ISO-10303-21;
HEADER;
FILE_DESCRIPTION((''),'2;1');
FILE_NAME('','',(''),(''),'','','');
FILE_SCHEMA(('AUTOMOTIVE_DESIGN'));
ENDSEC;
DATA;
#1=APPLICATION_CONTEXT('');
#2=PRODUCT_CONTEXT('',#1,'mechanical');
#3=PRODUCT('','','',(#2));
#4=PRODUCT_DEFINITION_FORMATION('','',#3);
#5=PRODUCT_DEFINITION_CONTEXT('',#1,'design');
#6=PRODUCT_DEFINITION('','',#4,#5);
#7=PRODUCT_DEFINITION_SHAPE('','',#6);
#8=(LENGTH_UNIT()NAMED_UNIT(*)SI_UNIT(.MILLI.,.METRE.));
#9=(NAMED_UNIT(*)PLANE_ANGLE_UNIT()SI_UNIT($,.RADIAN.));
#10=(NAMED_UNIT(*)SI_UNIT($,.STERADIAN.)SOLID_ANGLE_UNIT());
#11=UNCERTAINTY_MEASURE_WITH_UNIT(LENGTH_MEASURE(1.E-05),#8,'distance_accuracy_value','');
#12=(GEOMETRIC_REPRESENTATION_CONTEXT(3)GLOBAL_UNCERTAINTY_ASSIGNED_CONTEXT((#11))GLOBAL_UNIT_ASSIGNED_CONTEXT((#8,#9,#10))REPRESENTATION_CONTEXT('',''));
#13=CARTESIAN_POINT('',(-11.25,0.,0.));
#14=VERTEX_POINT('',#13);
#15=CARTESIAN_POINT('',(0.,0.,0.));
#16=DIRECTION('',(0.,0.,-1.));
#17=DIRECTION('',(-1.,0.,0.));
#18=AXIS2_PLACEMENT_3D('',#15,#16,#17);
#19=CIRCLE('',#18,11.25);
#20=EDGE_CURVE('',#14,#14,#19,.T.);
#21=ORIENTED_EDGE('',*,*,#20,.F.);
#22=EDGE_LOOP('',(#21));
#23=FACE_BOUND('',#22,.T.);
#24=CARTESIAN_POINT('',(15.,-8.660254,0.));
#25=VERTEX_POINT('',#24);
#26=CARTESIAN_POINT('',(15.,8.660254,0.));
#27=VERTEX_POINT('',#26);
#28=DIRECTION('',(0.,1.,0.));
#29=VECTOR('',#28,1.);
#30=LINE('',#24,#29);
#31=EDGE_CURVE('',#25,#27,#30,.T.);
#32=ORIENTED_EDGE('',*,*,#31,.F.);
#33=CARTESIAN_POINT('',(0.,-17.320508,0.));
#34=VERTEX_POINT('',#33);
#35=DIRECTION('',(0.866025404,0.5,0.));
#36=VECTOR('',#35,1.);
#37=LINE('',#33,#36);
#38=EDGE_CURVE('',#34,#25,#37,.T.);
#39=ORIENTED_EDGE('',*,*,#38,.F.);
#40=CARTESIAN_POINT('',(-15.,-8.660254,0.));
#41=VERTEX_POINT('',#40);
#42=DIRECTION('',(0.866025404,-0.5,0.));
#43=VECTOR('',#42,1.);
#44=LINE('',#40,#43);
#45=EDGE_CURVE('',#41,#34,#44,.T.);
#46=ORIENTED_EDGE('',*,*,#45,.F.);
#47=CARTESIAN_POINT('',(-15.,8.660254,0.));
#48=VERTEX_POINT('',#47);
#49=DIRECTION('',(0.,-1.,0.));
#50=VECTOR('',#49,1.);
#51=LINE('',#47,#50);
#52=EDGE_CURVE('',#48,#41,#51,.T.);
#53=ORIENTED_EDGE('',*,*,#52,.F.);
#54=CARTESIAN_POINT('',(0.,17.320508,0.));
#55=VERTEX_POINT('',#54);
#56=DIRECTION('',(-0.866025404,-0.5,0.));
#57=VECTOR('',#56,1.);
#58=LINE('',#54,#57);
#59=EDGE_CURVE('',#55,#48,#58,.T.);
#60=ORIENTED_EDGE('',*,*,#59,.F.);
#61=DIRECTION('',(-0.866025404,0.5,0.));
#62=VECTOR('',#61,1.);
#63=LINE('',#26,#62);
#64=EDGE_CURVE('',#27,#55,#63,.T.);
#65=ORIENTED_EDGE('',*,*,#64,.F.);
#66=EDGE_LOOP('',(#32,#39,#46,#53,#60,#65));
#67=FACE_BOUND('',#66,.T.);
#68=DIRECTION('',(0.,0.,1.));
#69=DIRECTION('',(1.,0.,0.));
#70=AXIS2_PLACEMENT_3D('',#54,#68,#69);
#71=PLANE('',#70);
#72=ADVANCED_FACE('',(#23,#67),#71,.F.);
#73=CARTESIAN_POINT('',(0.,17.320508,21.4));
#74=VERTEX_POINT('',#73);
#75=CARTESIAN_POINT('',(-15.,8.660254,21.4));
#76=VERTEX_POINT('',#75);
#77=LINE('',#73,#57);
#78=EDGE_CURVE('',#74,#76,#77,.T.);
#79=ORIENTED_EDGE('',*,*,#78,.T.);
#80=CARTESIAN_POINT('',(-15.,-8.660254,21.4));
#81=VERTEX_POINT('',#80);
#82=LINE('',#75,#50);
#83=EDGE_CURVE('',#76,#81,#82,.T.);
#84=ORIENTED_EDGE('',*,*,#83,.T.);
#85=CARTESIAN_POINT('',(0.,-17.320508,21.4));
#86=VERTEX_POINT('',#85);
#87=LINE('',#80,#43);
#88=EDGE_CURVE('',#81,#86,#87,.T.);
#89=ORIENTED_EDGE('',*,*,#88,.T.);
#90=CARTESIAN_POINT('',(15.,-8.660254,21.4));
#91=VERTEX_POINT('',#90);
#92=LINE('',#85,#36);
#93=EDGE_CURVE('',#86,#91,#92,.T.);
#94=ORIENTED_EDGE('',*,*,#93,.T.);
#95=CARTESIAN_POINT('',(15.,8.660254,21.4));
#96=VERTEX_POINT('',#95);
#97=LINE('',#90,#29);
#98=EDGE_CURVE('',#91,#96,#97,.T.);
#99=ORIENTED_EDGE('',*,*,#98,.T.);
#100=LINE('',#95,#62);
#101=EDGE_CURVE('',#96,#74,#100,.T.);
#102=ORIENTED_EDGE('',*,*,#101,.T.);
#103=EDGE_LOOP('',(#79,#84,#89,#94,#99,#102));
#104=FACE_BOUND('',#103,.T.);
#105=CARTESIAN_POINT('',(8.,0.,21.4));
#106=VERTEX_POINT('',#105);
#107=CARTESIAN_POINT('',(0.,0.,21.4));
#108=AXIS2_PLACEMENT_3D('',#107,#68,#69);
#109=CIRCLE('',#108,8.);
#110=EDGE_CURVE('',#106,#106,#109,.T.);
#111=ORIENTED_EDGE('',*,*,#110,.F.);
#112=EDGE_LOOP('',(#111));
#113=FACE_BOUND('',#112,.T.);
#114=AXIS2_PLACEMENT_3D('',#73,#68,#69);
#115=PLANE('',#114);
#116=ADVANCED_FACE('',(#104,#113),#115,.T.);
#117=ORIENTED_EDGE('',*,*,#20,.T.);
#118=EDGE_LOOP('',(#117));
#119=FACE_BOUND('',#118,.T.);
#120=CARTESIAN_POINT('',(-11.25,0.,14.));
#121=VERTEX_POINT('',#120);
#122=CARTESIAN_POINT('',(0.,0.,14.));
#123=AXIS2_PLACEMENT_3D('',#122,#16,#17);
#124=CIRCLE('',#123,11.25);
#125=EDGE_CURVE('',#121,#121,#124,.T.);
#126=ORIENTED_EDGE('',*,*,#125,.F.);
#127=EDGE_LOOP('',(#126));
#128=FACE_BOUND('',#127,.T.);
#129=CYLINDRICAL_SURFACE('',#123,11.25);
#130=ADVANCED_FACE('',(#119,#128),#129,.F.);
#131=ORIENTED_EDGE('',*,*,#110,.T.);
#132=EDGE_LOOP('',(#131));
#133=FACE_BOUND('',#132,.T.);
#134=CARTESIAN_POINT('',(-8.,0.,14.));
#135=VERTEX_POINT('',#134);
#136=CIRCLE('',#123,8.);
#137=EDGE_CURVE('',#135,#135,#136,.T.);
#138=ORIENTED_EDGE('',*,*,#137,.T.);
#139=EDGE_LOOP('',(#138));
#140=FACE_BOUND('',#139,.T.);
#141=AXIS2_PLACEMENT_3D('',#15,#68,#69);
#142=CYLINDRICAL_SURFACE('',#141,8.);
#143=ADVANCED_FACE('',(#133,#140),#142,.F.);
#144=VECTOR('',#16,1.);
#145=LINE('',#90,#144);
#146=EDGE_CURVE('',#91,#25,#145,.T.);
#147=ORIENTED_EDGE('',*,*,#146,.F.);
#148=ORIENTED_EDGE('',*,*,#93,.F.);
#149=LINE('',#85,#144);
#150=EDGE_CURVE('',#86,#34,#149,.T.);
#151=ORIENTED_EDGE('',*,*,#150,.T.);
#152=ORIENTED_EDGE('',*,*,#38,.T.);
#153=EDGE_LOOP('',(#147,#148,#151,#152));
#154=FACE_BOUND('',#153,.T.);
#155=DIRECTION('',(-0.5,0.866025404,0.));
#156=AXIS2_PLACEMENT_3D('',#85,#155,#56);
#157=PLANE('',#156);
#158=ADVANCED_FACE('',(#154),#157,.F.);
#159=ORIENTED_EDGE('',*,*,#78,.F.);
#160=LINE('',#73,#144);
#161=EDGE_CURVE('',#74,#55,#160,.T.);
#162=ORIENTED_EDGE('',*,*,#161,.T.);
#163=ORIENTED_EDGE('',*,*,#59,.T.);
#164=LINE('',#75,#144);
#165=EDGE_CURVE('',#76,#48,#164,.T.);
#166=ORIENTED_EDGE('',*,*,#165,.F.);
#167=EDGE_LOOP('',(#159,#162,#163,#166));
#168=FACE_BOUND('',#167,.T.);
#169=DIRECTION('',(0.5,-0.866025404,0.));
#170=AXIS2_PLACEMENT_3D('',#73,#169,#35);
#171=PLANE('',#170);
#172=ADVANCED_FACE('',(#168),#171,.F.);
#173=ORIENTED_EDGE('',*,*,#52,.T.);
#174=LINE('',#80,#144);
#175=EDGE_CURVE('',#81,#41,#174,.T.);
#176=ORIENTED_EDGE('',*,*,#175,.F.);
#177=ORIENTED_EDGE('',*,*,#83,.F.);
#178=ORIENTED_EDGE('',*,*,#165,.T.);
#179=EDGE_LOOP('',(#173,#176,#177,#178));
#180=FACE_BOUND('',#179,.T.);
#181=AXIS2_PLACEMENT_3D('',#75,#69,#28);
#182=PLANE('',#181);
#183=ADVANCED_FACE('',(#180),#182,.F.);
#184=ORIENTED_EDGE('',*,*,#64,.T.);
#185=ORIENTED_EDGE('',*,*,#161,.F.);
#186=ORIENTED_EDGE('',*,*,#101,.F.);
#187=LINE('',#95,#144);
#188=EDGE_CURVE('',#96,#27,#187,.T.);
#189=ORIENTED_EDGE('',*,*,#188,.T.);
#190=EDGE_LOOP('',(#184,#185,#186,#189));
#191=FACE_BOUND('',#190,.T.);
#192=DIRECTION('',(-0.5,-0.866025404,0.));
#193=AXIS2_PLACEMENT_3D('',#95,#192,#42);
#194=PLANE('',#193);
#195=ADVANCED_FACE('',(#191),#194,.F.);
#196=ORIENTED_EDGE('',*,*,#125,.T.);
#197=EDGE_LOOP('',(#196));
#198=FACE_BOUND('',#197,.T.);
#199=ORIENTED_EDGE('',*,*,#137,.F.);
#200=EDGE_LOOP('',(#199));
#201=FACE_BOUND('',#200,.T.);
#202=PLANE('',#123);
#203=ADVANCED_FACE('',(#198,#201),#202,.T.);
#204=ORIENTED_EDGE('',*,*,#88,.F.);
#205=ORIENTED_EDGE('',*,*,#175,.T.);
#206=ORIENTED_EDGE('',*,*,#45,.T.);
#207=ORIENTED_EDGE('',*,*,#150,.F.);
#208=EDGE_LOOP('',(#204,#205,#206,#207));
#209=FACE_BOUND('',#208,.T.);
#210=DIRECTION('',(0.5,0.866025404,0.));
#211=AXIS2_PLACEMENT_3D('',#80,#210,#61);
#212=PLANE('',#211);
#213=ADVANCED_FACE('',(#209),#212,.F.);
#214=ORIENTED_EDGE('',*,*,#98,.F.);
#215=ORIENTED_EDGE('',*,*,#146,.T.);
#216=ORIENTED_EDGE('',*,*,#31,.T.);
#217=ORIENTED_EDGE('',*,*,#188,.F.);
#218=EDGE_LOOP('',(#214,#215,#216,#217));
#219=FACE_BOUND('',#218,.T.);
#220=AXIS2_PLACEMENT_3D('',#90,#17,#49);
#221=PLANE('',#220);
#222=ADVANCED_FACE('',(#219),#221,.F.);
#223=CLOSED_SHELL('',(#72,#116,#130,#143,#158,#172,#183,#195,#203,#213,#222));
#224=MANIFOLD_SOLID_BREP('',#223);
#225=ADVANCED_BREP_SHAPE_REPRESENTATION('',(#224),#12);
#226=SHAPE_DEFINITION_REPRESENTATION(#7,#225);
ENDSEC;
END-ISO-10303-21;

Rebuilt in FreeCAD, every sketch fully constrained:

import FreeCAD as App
import Part
import Sketcher
Q = App.Units.Quantity


def add_polygon(sketch, points):
    """Adds a closed chain of lines whose ends are joined by coincident constraints."""
    first, n = sketch.GeometryCount, len(points)
    for a, b in zip(points, points[1:] + points[:1]):
        sketch.addGeometry(Part.LineSegment(App.Vector(*a, 0), App.Vector(*b, 0)), False)
    for i in range(n):
        sketch.addConstraint(Sketcher.Constraint("Coincident", first + i, 2, first + (i + 1) % n, 1))

doc = App.newDocument("Part")
body = doc.addObject("PartDesign::Body", "Body")

sketch1 = body.newObject("Sketcher::SketchObject", "Sketch")
sketch1.AttachmentSupport = (doc.getObject("XY_Plane"), [""])
sketch1.MapMode = "FlatFace"
add_polygon(sketch1, [(0, 17), (-15, 9), (-15, -9), (0, -17), (15, -9), (15, 9)])
sketch1.addConstraint([
    Sketcher.Constraint("Vertical", 1),
    Sketcher.Constraint("Vertical", 4),
    Sketcher.Constraint("Symmetric", 0, 2, 3, 2, -1, 1),
    Sketcher.Constraint("Symmetric", 2, 2, 5, 2, -1, 1),
    Sketcher.Constraint("PointOnObject", 2, 2, -2),
    Sketcher.Constraint("Parallel", 2, 5),
    Sketcher.Constraint("Horizontal", 1, 2, 3, 2),
    Sketcher.Constraint("Angle", 0, Q("-150 deg")),
    Sketcher.Constraint("DistanceX", 0, 2, -1, 1, Q("15 mm")),
    Sketcher.Constraint("DistanceY", 1, 2, 1, 1, Q("17.320508 mm")),
])
pad1 = body.newObject("PartDesign::Pad", "Pad")
pad1.Profile = sketch1
pad1.Length = 21.4

sketch2 = body.newObject("Sketcher::SketchObject", "Sketch001")
sketch2.AttachmentSupport = (doc.getObject("XY_Plane"), [""])
sketch2.MapMode = "FlatFace"
sketch2.addGeometry(Part.Circle(App.Vector(0, 0, 0), App.Vector(0, 0, 1), 11), False)
sketch2.addConstraint([
    Sketcher.Constraint("Coincident", 0, 3, -1, 1),
    Sketcher.Constraint("Diameter", 0, Q("22.5 mm")),
])
pocket1 = body.newObject("PartDesign::Pocket", "Pocket")
pocket1.Profile = sketch2
pocket1.Length = 14
pocket1.Reversed = True

sketch3 = body.newObject("Sketcher::SketchObject", "Sketch002")
sketch3.AttachmentSupport = (doc.getObject("XY_Plane"), [""])
sketch3.MapMode = "FlatFace"
sketch3.AttachmentOffset = App.Placement(App.Vector(0, 0, 21.4), App.Rotation())
sketch3.addGeometry(Part.Circle(App.Vector(0, 0, 0), App.Vector(0, 0, 1), 8), False)
sketch3.addConstraint([
    Sketcher.Constraint("Coincident", 0, 3, -1, 1),
    Sketcher.Constraint("Diameter", 0, Q("16 mm")),
])
pocket2 = body.newObject("PartDesign::Pocket", "Pocket001")
pocket2.Profile = sketch3
pocket2.Type = "ThroughAll"

doc.recompute()
